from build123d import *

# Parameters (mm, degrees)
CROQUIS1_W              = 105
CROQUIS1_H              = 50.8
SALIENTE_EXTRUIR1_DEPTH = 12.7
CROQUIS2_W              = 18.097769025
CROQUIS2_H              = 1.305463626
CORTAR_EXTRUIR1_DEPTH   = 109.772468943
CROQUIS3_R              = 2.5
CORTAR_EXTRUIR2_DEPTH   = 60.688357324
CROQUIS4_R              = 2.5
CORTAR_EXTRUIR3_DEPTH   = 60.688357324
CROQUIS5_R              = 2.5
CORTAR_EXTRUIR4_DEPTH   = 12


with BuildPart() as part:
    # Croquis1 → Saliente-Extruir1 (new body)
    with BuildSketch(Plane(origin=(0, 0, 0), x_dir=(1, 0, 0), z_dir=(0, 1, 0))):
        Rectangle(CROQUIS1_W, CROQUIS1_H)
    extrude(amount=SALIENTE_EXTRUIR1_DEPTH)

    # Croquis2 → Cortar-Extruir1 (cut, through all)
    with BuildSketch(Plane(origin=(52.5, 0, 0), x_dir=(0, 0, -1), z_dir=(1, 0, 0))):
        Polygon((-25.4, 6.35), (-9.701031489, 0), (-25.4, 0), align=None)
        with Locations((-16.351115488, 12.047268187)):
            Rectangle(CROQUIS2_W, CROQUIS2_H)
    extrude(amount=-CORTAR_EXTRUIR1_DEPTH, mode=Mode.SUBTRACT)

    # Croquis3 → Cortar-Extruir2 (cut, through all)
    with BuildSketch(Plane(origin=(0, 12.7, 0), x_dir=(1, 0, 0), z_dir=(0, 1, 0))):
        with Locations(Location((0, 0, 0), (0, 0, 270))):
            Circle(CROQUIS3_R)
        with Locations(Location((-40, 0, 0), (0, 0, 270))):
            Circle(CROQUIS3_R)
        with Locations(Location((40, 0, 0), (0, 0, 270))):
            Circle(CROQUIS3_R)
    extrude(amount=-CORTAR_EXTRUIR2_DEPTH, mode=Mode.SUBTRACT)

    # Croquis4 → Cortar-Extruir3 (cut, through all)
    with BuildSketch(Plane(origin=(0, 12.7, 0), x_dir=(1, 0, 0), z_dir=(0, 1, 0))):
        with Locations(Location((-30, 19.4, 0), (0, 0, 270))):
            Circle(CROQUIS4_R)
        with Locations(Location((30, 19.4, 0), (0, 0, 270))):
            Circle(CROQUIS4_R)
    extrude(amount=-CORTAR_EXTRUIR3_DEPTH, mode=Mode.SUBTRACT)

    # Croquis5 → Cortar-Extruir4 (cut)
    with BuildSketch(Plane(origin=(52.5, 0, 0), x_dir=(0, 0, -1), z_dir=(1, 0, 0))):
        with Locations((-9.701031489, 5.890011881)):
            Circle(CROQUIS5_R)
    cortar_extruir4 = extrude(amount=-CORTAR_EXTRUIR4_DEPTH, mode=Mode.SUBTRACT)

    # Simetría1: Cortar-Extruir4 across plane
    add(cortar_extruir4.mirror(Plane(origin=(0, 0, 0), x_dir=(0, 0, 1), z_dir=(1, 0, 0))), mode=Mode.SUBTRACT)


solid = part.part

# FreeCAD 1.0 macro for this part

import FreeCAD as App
import Part
import Sketcher

V = App.Vector

doc = App.newDocument("Part")
body = doc.addObject("PartDesign::Body", "Body")

sketch1 = body.newObject("Sketcher::SketchObject", "Sketch")
sketch1.AttachmentSupport = (doc.getObject("XZ_Plane"), [""])
sketch1.MapMode = "FlatFace"
sketch1.addGeometry(Part.LineSegment(V(-52, -25, 0), V(-52, 25, 0)), False)
sketch1.addGeometry(Part.LineSegment(V(-52, 25, 0), V(52, 25, 0)), False)
sketch1.addGeometry(Part.LineSegment(V(52, 25, 0), V(52, -25, 0)), False)
sketch1.addGeometry(Part.LineSegment(V(52, -25, 0), V(-52, -25, 0)), False)
sketch1.addConstraint(Sketcher.Constraint("Coincident", 0, 2, 1, 1))
sketch1.addConstraint(Sketcher.Constraint("Coincident", 1, 2, 2, 1))
sketch1.addConstraint(Sketcher.Constraint("Coincident", 2, 2, 3, 1))
sketch1.addConstraint(Sketcher.Constraint("Coincident", 3, 2, 0, 1))
sketch1.addConstraint(Sketcher.Constraint("Vertical", 0))
sketch1.addConstraint(Sketcher.Constraint("Horizontal", 1))
sketch1.addConstraint(Sketcher.Constraint("Vertical", 2))
sketch1.addConstraint(Sketcher.Constraint("Horizontal", 3))
sketch1.addConstraint(Sketcher.Constraint("Symmetric", 0, 2, 2, 2, -1, 1))
sketch1.addConstraint(Sketcher.Constraint("DistanceX", 1, 1, 1, 2, 105.0))
sketch1.addConstraint(Sketcher.Constraint("DistanceY", 0, 1, 0, 2, 50.8))
pad1 = body.newObject("PartDesign::Pad", "Pad")
pad1.Profile = sketch1
pad1.Length = 12.7
pad1.Reversed = True

sketch2 = body.newObject("Sketcher::SketchObject", "Sketch001")
sketch2.AttachmentSupport = (doc.getObject("YZ_Plane"), [""])
sketch2.MapMode = "FlatFace"
sketch2.AttachmentOffset = App.Placement(V(0, 0, 52.5), App.Rotation())
sketch2.addGeometry(Part.LineSegment(V(0, 9.7, 0), V(6.3, 25.4, 0)), False)
sketch2.addGeometry(Part.LineSegment(V(6.3, 25.4, 0), V(0, 25.4, 0)), False)
sketch2.addGeometry(Part.LineSegment(V(0, 25.4, 0), V(0, 9.7, 0)), False)
sketch2.addGeometry(Part.LineSegment(V(12.7, 25.4, 0), V(11.4, 25.4, 0)), False)
sketch2.addGeometry(Part.LineSegment(V(11.4, 25.4, 0), V(11.4, 7.3, 0)), False)
sketch2.addGeometry(Part.LineSegment(V(11.4, 7.3, 0), V(12.7, 7.3, 0)), False)
sketch2.addGeometry(Part.LineSegment(V(12.7, 7.3, 0), V(12.7, 25.4, 0)), False)
sketch2.addConstraint(Sketcher.Constraint("Coincident", 0, 2, 1, 1))
sketch2.addConstraint(Sketcher.Constraint("Coincident", 1, 2, 2, 1))
sketch2.addConstraint(Sketcher.Constraint("Coincident", 2, 2, 0, 1))
sketch2.addConstraint(Sketcher.Constraint("Coincident", 3, 2, 4, 1))
sketch2.addConstraint(Sketcher.Constraint("Coincident", 4, 2, 5, 1))
sketch2.addConstraint(Sketcher.Constraint("Coincident", 5, 2, 6, 1))
sketch2.addConstraint(Sketcher.Constraint("Coincident", 6, 2, 3, 1))
sketch2.addConstraint(Sketcher.Constraint("Horizontal", 1))
sketch2.addConstraint(Sketcher.Constraint("Vertical", 2))
sketch2.addConstraint(Sketcher.Constraint("Horizontal", 3))
sketch2.addConstraint(Sketcher.Constraint("Vertical", 4))
sketch2.addConstraint(Sketcher.Constraint("Horizontal", 5))
sketch2.addConstraint(Sketcher.Constraint("Vertical", 6))
sketch2.addConstraint(Sketcher.Constraint("PointOnObject", 1, 2, -2))
sketch2.addConstraint(Sketcher.Constraint("Horizontal", 1, 2, 3, 2))
sketch2.addConstraint(Sketcher.Constraint("DistanceX", 1, 2, 1, 1, 6.35))
sketch2.addConstraint(Sketcher.Constraint("DistanceY", -1, 1, 0, 2, 25.4))
sketch2.addConstraint(Sketcher.Constraint("DistanceX", -1, 1, 5, 2, 12.7))
sketch2.addConstraint(Sketcher.Constraint("DistanceY", 2, 2, 2, 1, 15.698969))
sketch2.addConstraint(Sketcher.Constraint("DistanceY", 4, 2, 4, 1, 18.097769))
sketch2.addConstraint(Sketcher.Constraint("DistanceX", 3, 2, 3, 1, 1.305464))
pocket1 = body.newObject("PartDesign::Pocket", "Pocket")
pocket1.Profile = sketch2
pocket1.Type = "ThroughAll"

sketch3 = body.newObject("Sketcher::SketchObject", "Sketch002")
sketch3.AttachmentSupport = (doc.getObject("XZ_Plane"), [""])
sketch3.MapMode = "FlatFace"
sketch3.AttachmentOffset = App.Placement(V(0, 0, -12.7), App.Rotation())
sketch3.addGeometry(Part.Circle(V(0, 0, 0), V(0, 0, 1), 2.5), False)
sketch3.addGeometry(Part.Circle(V(-40, 0, 0), V(0, 0, 1), 2.5), False)
sketch3.addGeometry(Part.Circle(V(40, 0, 0), V(0, 0, 1), 2.5), False)
sketch3.addConstraint(Sketcher.Constraint("Coincident", 0, 3, -1, 1))
sketch3.addConstraint(Sketcher.Constraint("Equal", 0, 1))
sketch3.addConstraint(Sketcher.Constraint("Equal", 1, 2))
sketch3.addConstraint(Sketcher.Constraint("Symmetric", 1, 3, 2, 3, -1, 1))
sketch3.addConstraint(Sketcher.Constraint("PointOnObject", 1, 3, -1))
sketch3.addConstraint(Sketcher.Constraint("Diameter", 0, 5.0))
sketch3.addConstraint(Sketcher.Constraint("DistanceX", 1, 3, -1, 1, 40.0))
pocket2 = body.newObject("PartDesign::Pocket", "Pocket001")
pocket2.Profile = sketch3
pocket2.Type = "ThroughAll"
pocket2.Reversed = True

sketch4 = body.newObject("Sketcher::SketchObject", "Sketch003")
sketch4.AttachmentSupport = (doc.getObject("XZ_Plane"), [""])
sketch4.MapMode = "FlatFace"
sketch4.AttachmentOffset = App.Placement(V(0, 0, -12.7), App.Rotation())
sketch4.addGeometry(Part.Circle(V(-30, -19.4, 0), V(0, 0, 1), 2.5), False)
sketch4.addGeometry(Part.Circle(V(30, -19.4, 0), V(0, 0, 1), 2.5), False)
sketch4.addConstraint(Sketcher.Constraint("Equal", 0, 1))
sketch4.addConstraint(Sketcher.Constraint("Symmetric", 0, 3, 1, 3, -2))
sketch4.addConstraint(Sketcher.Constraint("Diameter", 0, 5.0))
sketch4.addConstraint(Sketcher.Constraint("DistanceX", 0, 3, -1, 1, 30.0))
sketch4.addConstraint(Sketcher.Constraint("DistanceY", 0, 3, -1, 1, 19.4))
pocket3 = body.newObject("PartDesign::Pocket", "Pocket002")
pocket3.Profile = sketch4
pocket3.Type = "ThroughAll"
pocket3.Reversed = True

sketch5 = body.newObject("Sketcher::SketchObject", "Sketch004")
sketch5.AttachmentSupport = (doc.getObject("YZ_Plane"), [""])
sketch5.MapMode = "FlatFace"
sketch5.AttachmentOffset = App.Placement(V(0, 0, 52.5), App.Rotation())
sketch5.addGeometry(Part.Circle(V(5.9, 9.7, 0), V(0, 0, 1), 2.5), False)
sketch5.addConstraint(Sketcher.Constraint("Diameter", 0, 5.0))
sketch5.addConstraint(Sketcher.Constraint("DistanceX", -1, 1, 0, 3, 5.890012))
sketch5.addConstraint(Sketcher.Constraint("DistanceY", -1, 1, 0, 3, 9.701031))
pocket4 = body.newObject("PartDesign::Pocket", "Pocket003")
pocket4.Profile = sketch5
pocket4.Length = 12
doc.recompute()

mirrored = body.newObject("PartDesign::Mirrored", "Mirrored")
mirrored.Originals = [pocket4]
mirrored.MirrorPlane = (doc.getObject("YZ_Plane"), [""])
body.Tip = mirrored

doc.recompute()
